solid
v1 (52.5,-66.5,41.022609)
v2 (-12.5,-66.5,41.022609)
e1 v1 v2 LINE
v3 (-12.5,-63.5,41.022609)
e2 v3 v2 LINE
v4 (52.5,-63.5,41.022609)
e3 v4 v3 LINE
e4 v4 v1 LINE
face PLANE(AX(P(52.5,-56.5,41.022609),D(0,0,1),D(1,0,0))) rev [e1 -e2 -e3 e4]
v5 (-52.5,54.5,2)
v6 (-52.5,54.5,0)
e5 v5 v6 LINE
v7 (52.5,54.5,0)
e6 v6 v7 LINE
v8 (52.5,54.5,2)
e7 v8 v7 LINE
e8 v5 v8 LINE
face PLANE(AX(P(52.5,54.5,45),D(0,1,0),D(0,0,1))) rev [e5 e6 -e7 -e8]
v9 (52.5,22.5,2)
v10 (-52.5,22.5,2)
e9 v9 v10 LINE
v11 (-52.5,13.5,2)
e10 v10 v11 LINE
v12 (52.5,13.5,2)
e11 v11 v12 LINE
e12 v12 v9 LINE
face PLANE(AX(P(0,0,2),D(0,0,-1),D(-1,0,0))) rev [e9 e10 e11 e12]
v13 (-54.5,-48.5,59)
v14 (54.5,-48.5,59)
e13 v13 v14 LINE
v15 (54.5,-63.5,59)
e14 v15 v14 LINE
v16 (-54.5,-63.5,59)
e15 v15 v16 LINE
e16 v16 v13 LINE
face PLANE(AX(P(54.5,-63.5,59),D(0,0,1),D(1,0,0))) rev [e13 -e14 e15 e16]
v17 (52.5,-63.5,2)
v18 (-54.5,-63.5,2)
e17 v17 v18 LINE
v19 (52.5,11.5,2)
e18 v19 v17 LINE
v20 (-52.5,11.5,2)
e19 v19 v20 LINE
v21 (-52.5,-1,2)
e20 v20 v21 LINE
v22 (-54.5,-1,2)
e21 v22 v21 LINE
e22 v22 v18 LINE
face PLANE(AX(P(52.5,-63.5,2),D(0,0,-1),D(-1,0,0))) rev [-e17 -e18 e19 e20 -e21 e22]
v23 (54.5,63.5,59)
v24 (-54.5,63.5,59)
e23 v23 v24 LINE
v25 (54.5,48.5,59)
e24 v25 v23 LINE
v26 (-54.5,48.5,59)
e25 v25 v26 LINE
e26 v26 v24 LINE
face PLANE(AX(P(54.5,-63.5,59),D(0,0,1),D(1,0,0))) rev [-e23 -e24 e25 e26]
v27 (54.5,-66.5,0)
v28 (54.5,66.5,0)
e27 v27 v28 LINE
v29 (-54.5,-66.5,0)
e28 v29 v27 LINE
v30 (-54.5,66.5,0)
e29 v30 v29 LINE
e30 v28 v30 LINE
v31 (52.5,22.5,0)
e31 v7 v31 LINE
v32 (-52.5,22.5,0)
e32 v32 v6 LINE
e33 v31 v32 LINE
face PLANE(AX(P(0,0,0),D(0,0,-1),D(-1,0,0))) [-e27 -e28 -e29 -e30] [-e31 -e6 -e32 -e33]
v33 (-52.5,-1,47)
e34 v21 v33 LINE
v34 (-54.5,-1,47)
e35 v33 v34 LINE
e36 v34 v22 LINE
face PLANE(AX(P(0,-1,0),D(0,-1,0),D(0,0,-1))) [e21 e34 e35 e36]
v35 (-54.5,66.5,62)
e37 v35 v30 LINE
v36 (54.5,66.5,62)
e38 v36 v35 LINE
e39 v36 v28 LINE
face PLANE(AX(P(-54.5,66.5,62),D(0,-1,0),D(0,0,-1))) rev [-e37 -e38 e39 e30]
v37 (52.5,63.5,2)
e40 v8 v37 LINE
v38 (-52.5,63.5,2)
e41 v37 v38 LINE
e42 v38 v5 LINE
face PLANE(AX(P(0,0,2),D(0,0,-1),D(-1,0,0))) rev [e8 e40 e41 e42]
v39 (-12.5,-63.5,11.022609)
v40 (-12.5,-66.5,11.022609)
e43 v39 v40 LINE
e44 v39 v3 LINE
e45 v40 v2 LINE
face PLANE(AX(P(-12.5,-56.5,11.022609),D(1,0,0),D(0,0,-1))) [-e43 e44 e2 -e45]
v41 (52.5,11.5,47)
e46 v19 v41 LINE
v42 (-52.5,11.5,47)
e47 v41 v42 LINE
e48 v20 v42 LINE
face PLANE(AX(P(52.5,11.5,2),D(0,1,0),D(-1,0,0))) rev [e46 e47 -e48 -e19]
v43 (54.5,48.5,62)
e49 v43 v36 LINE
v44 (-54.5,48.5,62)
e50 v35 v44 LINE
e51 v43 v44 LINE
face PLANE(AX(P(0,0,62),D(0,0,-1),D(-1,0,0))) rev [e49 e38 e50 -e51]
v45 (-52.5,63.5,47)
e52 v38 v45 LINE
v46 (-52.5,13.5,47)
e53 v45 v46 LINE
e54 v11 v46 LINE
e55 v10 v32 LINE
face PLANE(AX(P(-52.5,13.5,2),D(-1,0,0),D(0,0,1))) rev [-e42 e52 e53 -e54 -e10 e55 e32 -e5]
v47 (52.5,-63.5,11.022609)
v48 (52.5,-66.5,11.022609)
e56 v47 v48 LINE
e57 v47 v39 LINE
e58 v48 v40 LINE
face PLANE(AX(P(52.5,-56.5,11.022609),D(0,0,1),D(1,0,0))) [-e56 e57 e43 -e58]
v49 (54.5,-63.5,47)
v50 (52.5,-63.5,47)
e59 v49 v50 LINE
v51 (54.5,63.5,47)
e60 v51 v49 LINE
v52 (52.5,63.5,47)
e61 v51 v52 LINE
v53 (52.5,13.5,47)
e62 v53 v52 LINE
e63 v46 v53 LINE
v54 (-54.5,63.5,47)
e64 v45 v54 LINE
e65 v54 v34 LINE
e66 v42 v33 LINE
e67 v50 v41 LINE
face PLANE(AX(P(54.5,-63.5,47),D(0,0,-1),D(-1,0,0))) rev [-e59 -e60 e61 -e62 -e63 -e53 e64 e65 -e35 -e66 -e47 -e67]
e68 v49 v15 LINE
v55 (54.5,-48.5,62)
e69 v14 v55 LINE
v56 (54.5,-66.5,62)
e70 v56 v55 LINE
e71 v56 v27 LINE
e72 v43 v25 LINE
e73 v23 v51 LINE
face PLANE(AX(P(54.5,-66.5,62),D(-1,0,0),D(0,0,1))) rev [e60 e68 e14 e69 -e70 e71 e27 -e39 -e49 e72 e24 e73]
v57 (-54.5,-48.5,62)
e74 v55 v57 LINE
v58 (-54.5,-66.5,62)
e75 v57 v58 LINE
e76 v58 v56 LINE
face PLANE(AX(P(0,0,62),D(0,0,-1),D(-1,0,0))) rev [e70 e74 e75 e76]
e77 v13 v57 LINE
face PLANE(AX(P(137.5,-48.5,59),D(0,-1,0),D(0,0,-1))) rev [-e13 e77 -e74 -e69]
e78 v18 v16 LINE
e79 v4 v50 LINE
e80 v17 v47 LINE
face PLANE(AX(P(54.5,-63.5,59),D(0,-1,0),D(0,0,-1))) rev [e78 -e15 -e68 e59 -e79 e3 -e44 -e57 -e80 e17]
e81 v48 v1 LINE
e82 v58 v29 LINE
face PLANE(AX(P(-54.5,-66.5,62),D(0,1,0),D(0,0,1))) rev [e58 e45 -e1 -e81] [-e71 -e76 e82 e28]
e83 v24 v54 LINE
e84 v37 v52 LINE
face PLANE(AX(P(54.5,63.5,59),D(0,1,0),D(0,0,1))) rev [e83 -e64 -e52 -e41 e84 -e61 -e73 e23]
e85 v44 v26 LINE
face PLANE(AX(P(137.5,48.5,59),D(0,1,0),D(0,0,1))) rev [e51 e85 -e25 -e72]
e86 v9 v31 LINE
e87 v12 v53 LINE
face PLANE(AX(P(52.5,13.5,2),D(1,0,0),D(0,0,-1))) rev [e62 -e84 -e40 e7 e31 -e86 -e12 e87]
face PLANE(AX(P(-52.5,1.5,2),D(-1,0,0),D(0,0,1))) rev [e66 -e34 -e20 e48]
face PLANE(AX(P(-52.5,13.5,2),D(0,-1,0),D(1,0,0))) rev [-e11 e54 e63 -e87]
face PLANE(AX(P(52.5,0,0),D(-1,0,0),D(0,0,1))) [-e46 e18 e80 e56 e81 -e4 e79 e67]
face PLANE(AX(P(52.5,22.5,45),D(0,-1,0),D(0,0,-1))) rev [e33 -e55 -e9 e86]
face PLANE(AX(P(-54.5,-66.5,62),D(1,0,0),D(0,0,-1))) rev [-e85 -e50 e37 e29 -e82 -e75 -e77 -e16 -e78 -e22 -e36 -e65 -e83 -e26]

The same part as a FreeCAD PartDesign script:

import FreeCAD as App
import Part
import Sketcher
from FreeCAD import Vector
Q = App.Units.Quantity

doc = App.newDocument("Part")
params = doc.addObject("Spreadsheet::Sheet", "Params")
for row, (alias, value) in enumerate([
    ("sketch1_width", "109 mm"),
    ("sketch1_height", "133 mm"),
    ("pad1_length", "62 mm"),
    ("sketch2_width", "77 mm"),
    ("sketch2_height", "3 mm"),
    ("pocket1_length", "109 mm"),
    ("sketch3_width", "127 mm"),
    ("sketch3_height", "12 mm"),
    ("pocket2_length", "109 mm"),
    ("sketch4_width", "65 mm"),
    ("sketch4_height", "45 mm"),
    ("pocket3_length", "107 mm"),
    ("sketch5_width", "105 mm"),
    ("sketch5_height", "10 mm"),
    ("pocket4_length", "45 mm"),
    ("sketch6_width", "105 mm"),
    ("sketch6_height", "50 mm"),
    ("pocket5_length", "45 mm"),
    ("sketch7_width", "105 mm"),
    ("sketch7_height", "32 mm"),
    ("pocket6_length", "45 mm"),
    ("sketch8_width", "10 mm"),
    ("sketch8_height", "3 mm"),
    ("pocket7_length", "192 mm"),
    ("sketch9_width", "65 mm"),
    ("sketch9_height", "30 mm"),
    ("pocket8_length", "10 mm"),
    ("sketch10_width", "2 mm"),
    ("sketch10_height", "45 mm"),
    ("pad2_length", "2.5 mm"),
], start=1):
    params.set(f"A{row}", alias)
    params.set(f"B{row}", "=" + value)
    params.setAlias(f"B{row}", alias)

body = doc.addObject("PartDesign::Body", "Body")

sketch1 = body.newObject("Sketcher::SketchObject", "Sketch")
sketch1.AttachmentSupport = (doc.getObject("XY_Plane"), [""])
sketch1.MapMode = "FlatFace"
sketch1.addGeometry([
    Part.LineSegment(Vector(-54, 66, 0), Vector(-54, -66, 0)),
    Part.LineSegment(Vector(-54, -66, 0), Vector(54, -66, 0)),
    Part.LineSegment(Vector(54, -66, 0), Vector(54, 66, 0)),
    Part.LineSegment(Vector(54, 66, 0), Vector(-54, 66, 0)),
], False)
sketch1.addConstraint([
    Sketcher.Constraint("Coincident", 0, 2, 1, 1),
    Sketcher.Constraint("Coincident", 1, 2, 2, 1),
    Sketcher.Constraint("Coincident", 2, 2, 3, 1),
    Sketcher.Constraint("Coincident", 3, 2, 0, 1),
    Sketcher.Constraint("Vertical", 0),
    Sketcher.Constraint("Horizontal", 1),
    Sketcher.Constraint("Vertical", 2),
    Sketcher.Constraint("Horizontal", 3),
    Sketcher.Constraint("Symmetric", 0, 2, 2, 2, -1, 1),
    Sketcher.Constraint("DistanceX", 1, 1, 1, 2, Q("109 mm")),
    Sketcher.Constraint("DistanceY", 0, 2, 0, 1, Q("133 mm")),
])
sketch1.setExpression("Constraints[9]", "Params.sketch1_width")
sketch1.setExpression("Constraints[10]", "Params.sketch1_height")
pad1 = body.newObject("PartDesign::Pad", "Pad")
pad1.Profile = sketch1
pad1.setExpression("Length", "Params.pad1_length")

sketch2 = body.newObject("Sketcher::SketchObject", "Sketch001")
sketch2.AttachmentSupport = (doc.getObject("YZ_Plane"), [""])
sketch2.MapMode = "FlatFace"
sketch2.AttachmentOffset = App.Placement(Vector(0, 0, -54.5), App.Rotation())
sketch2.addGeometry([
    Part.LineSegment(Vector(38.5, 59, 0), Vector(-38.5, 59, 0)),
    Part.LineSegment(Vector(-38.5, 59, 0), Vector(-38.5, 62, 0)),
    Part.LineSegment(Vector(-38.5, 62, 0), Vector(38.5, 62, 0)),
    Part.LineSegment(Vector(38.5, 62, 0), Vector(38.5, 59, 0)),
], False)
sketch2.addConstraint([
    Sketcher.Constraint("Coincident", 0, 2, 1, 1),
    Sketcher.Constraint("Coincident", 1, 2, 2, 1),
    Sketcher.Constraint("Coincident", 2, 2, 3, 1),
    Sketcher.Constraint("Coincident", 3, 2, 0, 1),
    Sketcher.Constraint("Horizontal", 0),
    Sketcher.Constraint("Vertical", 1),
    Sketcher.Constraint("Horizontal", 2),
    Sketcher.Constraint("Vertical", 3),
    Sketcher.Constraint("DistanceX", 0, 2, 0, 1, Q("77 mm")),
    Sketcher.Constraint("DistanceY", 1, 1, 1, 2, Q("3 mm")),
    Sketcher.Constraint("DistanceY", -1, 1, 0, 2, Q("59 mm")),
    Sketcher.Constraint("DistanceX", 0, 2, -1, 1, Q("38.5 mm")),
])
sketch2.setExpression("Constraints[8]", "Params.sketch2_width")
sketch2.setExpression("Constraints[9]", "Params.sketch2_height")
pocket1 = body.newObject("PartDesign::Pocket", "Pocket")
pocket1.Profile = sketch2
pocket1.setExpression("Length", "Params.pocket1_length")
pocket1.Reversed = True

sketch3 = body.newObject("Sketcher::SketchObject", "Sketch002")
sketch3.AttachmentSupport = (doc.getObject("YZ_Plane"), [""])
sketch3.MapMode = "FlatFace"
sketch3.AttachmentOffset = App.Placement(Vector(0, 0, -54.5), App.Rotation())
sketch3.addGeometry([
    Part.LineSegment(Vector(64, 47, 0), Vector(-64, 47, 0)),
    Part.LineSegment(Vector(-64, 47, 0), Vector(-64, 59, 0)),
    Part.LineSegment(Vector(-64, 59, 0), Vector(64, 59, 0)),
    Part.LineSegment(Vector(64, 59, 0), Vector(64, 47, 0)),
], False)
sketch3.addConstraint([
    Sketcher.Constraint("Coincident", 0, 2, 1, 1),
    Sketcher.Constraint("Coincident", 1, 2, 2, 1),
    Sketcher.Constraint("Coincident", 2, 2, 3, 1),
    Sketcher.Constraint("Coincident", 3, 2, 0, 1),
    Sketcher.Constraint("Horizontal", 0),
    Sketcher.Constraint("Vertical", 1),
    Sketcher.Constraint("Horizontal", 2),
    Sketcher.Constraint("Vertical", 3),
    Sketcher.Constraint("DistanceX", 0, 2, 0, 1, Q("127 mm")),
    Sketcher.Constraint("DistanceY", 1, 1, 1, 2, Q("12 mm")),
    Sketcher.Constraint("DistanceY", -1, 1, 0, 2, Q("47 mm")),
    Sketcher.Constraint("DistanceX", 0, 2, -1, 1, Q("63.5 mm")),
])
sketch3.setExpression("Constraints[8]", "Params.sketch3_width")
sketch3.setExpression("Constraints[9]", "Params.sketch3_height")
pocket2 = body.newObject("PartDesign::Pocket", "Pocket001")
pocket2.Profile = sketch3
pocket2.setExpression("Length", "Params.pocket2_length")
pocket2.Reversed = True

sketch4 = body.newObject("Sketcher::SketchObject", "Sketch003")
sketch4.AttachmentSupport = (doc.getObject("YZ_Plane"), [""])
sketch4.MapMode = "FlatFace"
sketch4.AttachmentOffset = App.Placement(Vector(0, 0, -54.5), App.Rotation())
sketch4.addGeometry([
    Part.LineSegment(Vector(2, 2, 0), Vector(-64, 2, 0)),
    Part.LineSegment(Vector(-64, 2, 0), Vector(-64, 47, 0)),
    Part.LineSegment(Vector(-64, 47, 0), Vector(2, 47, 0)),
    Part.LineSegment(Vector(2, 47, 0), Vector(2, 2, 0)),
], False)
sketch4.addConstraint([
    Sketcher.Constraint("Coincident", 0, 2, 1, 1),
    Sketcher.Constraint("Coincident", 1, 2, 2, 1),
    Sketcher.Constraint("Coincident", 2, 2, 3, 1),
    Sketcher.Constraint("Coincident", 3, 2, 0, 1),
    Sketcher.Constraint("Horizontal", 0),
    Sketcher.Constraint("Vertical", 1),
    Sketcher.Constraint("Horizontal", 2),
    Sketcher.Constraint("Vertical", 3),
    Sketcher.Constraint("DistanceX", 0, 2, 0, 1, Q("65 mm")),
    Sketcher.Constraint("DistanceY", 1, 1, 1, 2, Q("45 mm")),
    Sketcher.Constraint("DistanceY", -1, 1, 0, 2, Q("2 mm")),
    Sketcher.Constraint("DistanceX", 0, 2, -1, 1, Q("63.5 mm")),
])
sketch4.setExpression("Constraints[8]", "Params.sketch4_width")
sketch4.setExpression("Constraints[9]", "Params.sketch4_height")
pocket3 = body.newObject("PartDesign::Pocket", "Pocket002")
pocket3.Profile = sketch4
pocket3.setExpression("Length", "Params.pocket3_length")
pocket3.Reversed = True

sketch5 = body.newObject("Sketcher::SketchObject", "Sketch004")
sketch5.AttachmentSupport = (doc.getObject("XY_Plane"), [""])
sketch5.MapMode = "FlatFace"
sketch5.AttachmentOffset = App.Placement(Vector(0, 0, 47), App.Rotation())
sketch5.addGeometry([
    Part.LineSegment(Vector(-52, 12, 0), Vector(-52, 2, 0)),
    Part.LineSegment(Vector(-52, 2, 0), Vector(52, 2, 0)),
    Part.LineSegment(Vector(52, 2, 0), Vector(52, 12, 0)),
    Part.LineSegment(Vector(52, 12, 0), Vector(-52, 12, 0)),
], False)
sketch5.addConstraint([
    Sketcher.Constraint("Coincident", 0, 2, 1, 1),
    Sketcher.Constraint("Coincident", 1, 2, 2, 1),
    Sketcher.Constraint("Coincident", 2, 2, 3, 1),
    Sketcher.Constraint("Coincident", 3, 2, 0, 1),
    Sketcher.Constraint("Vertical", 0),
    Sketcher.Constraint("Horizontal", 1),
    Sketcher.Constraint("Vertical", 2),
    Sketcher.Constraint("Horizontal", 3),
    Sketcher.Constraint("DistanceX", 1, 1, 1, 2, Q("105 mm")),
    Sketcher.Constraint("DistanceY", 0, 2, 0, 1, Q("10 mm")),
    Sketcher.Constraint("DistanceX", 0, 2, -1, 1, Q("52.5 mm")),
    Sketcher.Constraint("DistanceY", -1, 1, 0, 2, Q("1.5 mm")),
])
sketch5.setExpression("Constraints[8]", "Params.sketch5_width")
sketch5.setExpression("Constraints[9]", "Params.sketch5_height")
pocket4 = body.newObject("PartDesign::Pocket", "Pocket003")
pocket4.Profile = sketch5
pocket4.setExpression("Length", "Params.pocket4_length")

sketch6 = body.newObject("Sketcher::SketchObject", "Sketch005")
sketch6.AttachmentSupport = (doc.getObject("XY_Plane"), [""])
sketch6.MapMode = "FlatFace"
sketch6.AttachmentOffset = App.Placement(Vector(0, 0, 47), App.Rotation())
sketch6.addGeometry([
    Part.LineSegment(Vector(-52, 64, 0), Vector(-52, 14, 0)),
    Part.LineSegment(Vector(-52, 14, 0), Vector(52, 14, 0)),
    Part.LineSegment(Vector(52, 14, 0), Vector(52, 64, 0)),
    Part.LineSegment(Vector(52, 64, 0), Vector(-52, 64, 0)),
], False)
sketch6.addConstraint([
    Sketcher.Constraint("Coincident", 0, 2, 1, 1),
    Sketcher.Constraint("Coincident", 1, 2, 2, 1),
    Sketcher.Constraint("Coincident", 2, 2, 3, 1),
    Sketcher.Constraint("Coincident", 3, 2, 0, 1),
    Sketcher.Constraint("Vertical", 0),
    Sketcher.Constraint("Horizontal", 1),
    Sketcher.Constraint("Vertical", 2),
    Sketcher.Constraint("Horizontal", 3),
    Sketcher.Constraint("DistanceX", 1, 1, 1, 2, Q("105 mm")),
    Sketcher.Constraint("DistanceY", 0, 2, 0, 1, Q("50 mm")),
    Sketcher.Constraint("DistanceX", 0, 2, -1, 1, Q("52.5 mm")),
    Sketcher.Constraint("DistanceY", -1, 1, 0, 2, Q("13.5 mm")),
])
sketch6.setExpression("Constraints[8]", "Params.sketch6_width")
sketch6.setExpression("Constraints[9]", "Params.sketch6_height")
pocket5 = body.newObject("PartDesign::Pocket", "Pocket004")
pocket5.Profile = sketch6
pocket5.setExpression("Length", "Params.pocket5_length")

sketch7 = body.newObject("Sketcher::SketchObject", "Sketch006")
sketch7.AttachmentSupport = (doc.getObject("XY_Plane"), [""])
sketch7.MapMode = "FlatFace"
sketch7.addGeometry([
    Part.LineSegment(Vector(52, 54, 0), Vector(52, 22, 0)),
    Part.LineSegment(Vector(52, 22, 0), Vector(-52, 22, 0)),
    Part.LineSegment(Vector(-52, 22, 0), Vector(-52, 54, 0)),
    Part.LineSegment(Vector(-52, 54, 0), Vector(52, 54, 0)),
], False)
sketch7.addConstraint([
    Sketcher.Constraint("Coincident", 0, 2, 1, 1),
    Sketcher.Constraint("Coincident", 1, 2, 2, 1),
    Sketcher.Constraint("Coincident", 2, 2, 3, 1),
    Sketcher.Constraint("Coincident", 3, 2, 0, 1),
    Sketcher.Constraint("Vertical", 0),
    Sketcher.Constraint("Horizontal", 1),
    Sketcher.Constraint("Vertical", 2),
    Sketcher.Constraint("Horizontal", 3),
    Sketcher.Constraint("DistanceX", 1, 2, 1, 1, Q("105 mm")),
    Sketcher.Constraint("DistanceY", 0, 2, 0, 1, Q("32 mm")),
    Sketcher.Constraint("DistanceX", -1, 1, 0, 2, Q("52.5 mm")),
    Sketcher.Constraint("DistanceY", -1, 1, 0, 2, Q("22.5 mm")),
])
sketch7.setExpression("Constraints[8]", "Params.sketch7_width")
sketch7.setExpression("Constraints[9]", "Params.sketch7_height")
pocket6 = body.newObject("PartDesign::Pocket", "Pocket005")
pocket6.Profile = sketch7
pocket6.setExpression("Length", "Params.pocket6_length")
pocket6.Reversed = True

sketch8 = body.newObject("Sketcher::SketchObject", "Sketch007")
sketch8.AttachmentSupport = (doc.getObject("YZ_Plane"), [""])
sketch8.MapMode = "FlatFace"
sketch8.AttachmentOffset = App.Placement(Vector(0, 0, -54.5), App.Rotation())
sketch8.addGeometry([
    Part.LineSegment(Vector(48.5, 59, 0), Vector(38.5, 59, 0)),
    Part.LineSegment(Vector(38.5, 59, 0), Vector(38.5, 62, 0)),
    Part.LineSegment(Vector(38.5, 62, 0), Vector(48.5, 62, 0)),
    Part.LineSegment(Vector(48.5, 62, 0), Vector(48.5, 59, 0)),
    Part.LineSegment(Vector(-38.5, 59, 0), Vector(-48.5, 59, 0)),
    Part.LineSegment(Vector(-48.5, 59, 0), Vector(-48.5, 62, 0)),
    Part.LineSegment(Vector(-48.5, 62, 0), Vector(-38.5, 62, 0)),
    Part.LineSegment(Vector(-38.5, 62, 0), Vector(-38.5, 59, 0)),
], False)
sketch8.addConstraint([
    Sketcher.Constraint("Coincident", 0, 2, 1, 1),
    Sketcher.Constraint("Coincident", 1, 2, 2, 1),
    Sketcher.Constraint("Coincident", 2, 2, 3, 1),
    Sketcher.Constraint("Coincident", 3, 2, 0, 1),
    Sketcher.Constraint("Coincident", 4, 2, 5, 1),
    Sketcher.Constraint("Coincident", 5, 2, 6, 1),
    Sketcher.Constraint("Coincident", 6, 2, 7, 1),
    Sketcher.Constraint("Coincident", 7, 2, 4, 1),
    Sketcher.Constraint("Horizontal", 0),
    Sketcher.Constraint("Vertical", 1),
    Sketcher.Constraint("Horizontal", 2),
    Sketcher.Constraint("Vertical", 3),
    Sketcher.Constraint("Horizontal", 4),
    Sketcher.Constraint("Vertical", 5),
    Sketcher.Constraint("Horizontal", 6),
    Sketcher.Constraint("Vertical", 7),
    Sketcher.Constraint("Symmetric", 3, 2, 4, 2, -2),
    Sketcher.Constraint("Symmetric", 1, 2, 6, 2, -2),
    Sketcher.Constraint("DistanceX", 0, 2, 0, 1, Q("10 mm")),
    Sketcher.Constraint("DistanceY", 1, 1, 1, 2, Q("3 mm")),
    Sketcher.Constraint("DistanceY", -1, 1, 0, 2, Q("59 mm")),
    Sketcher.Constraint("DistanceX", 4, 2, 0, 2, Q("87 mm")),
])
sketch8.setExpression("Constraints[18]", "Params.sketch8_width")
sketch8.setExpression("Constraints[19]", "Params.sketch8_height")
pocket7 = body.newObject("PartDesign::Pocket", "Pocket006")
pocket7.Profile = sketch8
pocket7.setExpression("Length", "Params.pocket7_length")
pocket7.Reversed = True

sketch9 = body.newObject("Sketcher::SketchObject", "Sketch008")
sketch9.AttachmentSupport = (doc.getObject("XZ_Plane"), [""])
sketch9.MapMode = "FlatFace"
sketch9.AttachmentOffset = App.Placement(Vector(0, 0, 66.5), App.Rotation())
sketch9.addGeometry([
    Part.LineSegment(Vector(-12, 41, 0), Vector(-12, 11, 0)),
    Part.LineSegment(Vector(-12, 11, 0), Vector(52, 11, 0)),
    Part.LineSegment(Vector(52, 11, 0), Vector(52, 41, 0)),
    Part.LineSegment(Vector(52, 41, 0), Vector(-12, 41, 0)),
], False)
sketch9.addConstraint([
    Sketcher.Constraint("Coincident", 0, 2, 1, 1),
    Sketcher.Constraint("Coincident", 1, 2, 2, 1),
    Sketcher.Constraint("Coincident", 2, 2, 3, 1),
    Sketcher.Constraint("Coincident", 3, 2, 0, 1),
    Sketcher.Constraint("Vertical", 0),
    Sketcher.Constraint("Horizontal", 1),
    Sketcher.Constraint("Vertical", 2),
    Sketcher.Constraint("Horizontal", 3),
    Sketcher.Constraint("DistanceX", 1, 1, 1, 2, Q("65 mm")),
    Sketcher.Constraint("DistanceY", 0, 2, 0, 1, Q("30 mm")),
    Sketcher.Constraint("DistanceX", 0, 2, -1, 1, Q("12.5 mm")),
    Sketcher.Constraint("DistanceY", -1, 1, 0, 2, Q("11.022609 mm")),
])
sketch9.setExpression("Constraints[8]", "Params.sketch9_width")
sketch9.setExpression("Constraints[9]", "Params.sketch9_height")
pocket8 = body.newObject("PartDesign::Pocket", "Pocket007")
pocket8.Profile = sketch9
pocket8.setExpression("Length", "Params.pocket8_length")

sketch10 = body.newObject("Sketcher::SketchObject", "Sketch009")
sketch10.AttachmentSupport = (doc.getObject("XZ_Plane"), [""])
sketch10.MapMode = "FlatFace"
sketch10.AttachmentOffset = App.Placement(Vector(0, 0, -1.5), App.Rotation())
sketch10.addGeometry([
    Part.LineSegment(Vector(-54.5, 47, 0), Vector(-54.5, 2, 0)),
    Part.LineSegment(Vector(-54.5, 2, 0), Vector(-52.5, 2, 0)),
    Part.LineSegment(Vector(-52.5, 2, 0), Vector(-52.5, 47, 0)),
    Part.LineSegment(Vector(-52.5, 47, 0), Vector(-54.5, 47, 0)),
], False)
sketch10.addConstraint([
    Sketcher.Constraint("Coincident", 0, 2, 1, 1),
    Sketcher.Constraint("Coincident", 1, 2, 2, 1),
    Sketcher.Constraint("Coincident", 2, 2, 3, 1),
    Sketcher.Constraint("Coincident", 3, 2, 0, 1),
    Sketcher.Constraint("Vertical", 0),
    Sketcher.Constraint("Horizontal", 1),
    Sketcher.Constraint("Vertical", 2),
    Sketcher.Constraint("Horizontal", 3),
    Sketcher.Constraint("DistanceX", 1, 1, 1, 2, Q("2 mm")),
    Sketcher.Constraint("DistanceY", 0, 2, 0, 1, Q("45 mm")),
    Sketcher.Constraint("DistanceY", -1, 1, 0, 2, Q("2 mm")),
    Sketcher.Constraint("DistanceX", 0, 2, -1, 1, Q("54.5 mm")),
])
sketch10.setExpression("Constraints[8]", "Params.sketch10_width")
sketch10.setExpression("Constraints[9]", "Params.sketch10_height")
pad2 = body.newObject("PartDesign::Pad", "Pad001")
pad2.Profile = sketch10
pad2.setExpression("Length", "Params.pad2_length")

doc.recompute()
